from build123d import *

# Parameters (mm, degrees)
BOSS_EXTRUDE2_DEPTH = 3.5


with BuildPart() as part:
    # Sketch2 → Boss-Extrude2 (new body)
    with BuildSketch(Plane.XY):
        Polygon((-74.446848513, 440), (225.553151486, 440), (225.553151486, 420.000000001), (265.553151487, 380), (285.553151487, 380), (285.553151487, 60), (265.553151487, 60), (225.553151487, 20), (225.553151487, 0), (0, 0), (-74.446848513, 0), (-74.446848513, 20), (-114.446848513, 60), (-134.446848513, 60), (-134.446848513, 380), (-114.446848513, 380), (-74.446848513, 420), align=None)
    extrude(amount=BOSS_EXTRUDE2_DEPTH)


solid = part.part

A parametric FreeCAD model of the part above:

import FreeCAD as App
import Part
import Sketcher

doc = App.newDocument("Part")
body = doc.addObject("PartDesign::Body", "Body")

# Sketch on XY plane
sketch1 = body.newObject("Sketcher::SketchObject", "Sketch")
sketch1.AttachmentSupport = (doc.getObject("XY_Plane"), [""])
sketch1.MapMode = "FlatFace"
sketch1.addGeometry([
    Part.LineSegment(App.Vector(225.553151, 440, 0), App.Vector(-74.446849, 440, 0)),  # 0
    Part.LineSegment(App.Vector(-74.446849, 440, 0), App.Vector(-74.446849, 420, 0)),  # 1
    Part.LineSegment(App.Vector(-74.446849, 420, 0), App.Vector(-114.446849, 380, 0)),  # 2
    Part.LineSegment(App.Vector(-114.446849, 380, 0), App.Vector(-134.446849, 380, 0)),  # 3
    Part.LineSegment(App.Vector(-134.446849, 380, 0), App.Vector(-134.446849, 60, 0)),  # 4
    Part.LineSegment(App.Vector(-134.446849, 60, 0), App.Vector(-114.446849, 60, 0)),  # 5
    Part.LineSegment(App.Vector(-114.446849, 60, 0), App.Vector(-74.446849, 20, 0)),  # 6
    Part.LineSegment(App.Vector(-74.446849, 20, 0), App.Vector(-74.446849, 0, 0)),  # 7
    Part.LineSegment(App.Vector(-74.446849, 0, 0), App.Vector(225.553151, 0, 0)),  # 8
    Part.LineSegment(App.Vector(225.553151, 0, 0), App.Vector(225.553151, 20, 0)),  # 9
    Part.LineSegment(App.Vector(225.553151, 20, 0), App.Vector(265.553151, 60, 0)),  # 10
    Part.LineSegment(App.Vector(265.553151, 60, 0), App.Vector(285.553151, 60, 0)),  # 11
    Part.LineSegment(App.Vector(285.553151, 60, 0), App.Vector(285.553151, 380, 0)),  # 12
    Part.LineSegment(App.Vector(285.553151, 380, 0), App.Vector(265.553151, 380, 0)),  # 13
    Part.LineSegment(App.Vector(265.553151, 380, 0), App.Vector(225.553151, 420, 0)),  # 14
    Part.LineSegment(App.Vector(225.553151, 420, 0), App.Vector(225.553151, 440, 0)),  # 15
], False)
sketch1.addConstraint([
    Sketcher.Constraint("Coincident", 0, 2, 1, 1),
    Sketcher.Constraint("Coincident", 1, 2, 2, 1),
    Sketcher.Constraint("Coincident", 2, 2, 3, 1),
    Sketcher.Constraint("Coincident", 3, 2, 4, 1),
    Sketcher.Constraint("Coincident", 4, 2, 5, 1),
    Sketcher.Constraint("Coincident", 5, 2, 6, 1),
    Sketcher.Constraint("Coincident", 6, 2, 7, 1),
    Sketcher.Constraint("Coincident", 7, 2, 8, 1),
    Sketcher.Constraint("Coincident", 8, 2, 9, 1),
    Sketcher.Constraint("Coincident", 9, 2, 10, 1),
    Sketcher.Constraint("Coincident", 10, 2, 11, 1),
    Sketcher.Constraint("Coincident", 11, 2, 12, 1),
    Sketcher.Constraint("Coincident", 12, 2, 13, 1),
    Sketcher.Constraint("Coincident", 13, 2, 14, 1),
    Sketcher.Constraint("Coincident", 14, 2, 15, 1),
    Sketcher.Constraint("Coincident", 15, 2, 0, 1),
    Sketcher.Constraint("Horizontal", 0),
    Sketcher.Constraint("Vertical", 1),
    Sketcher.Constraint("Horizontal", 3),
    Sketcher.Constraint("Vertical", 4),
    Sketcher.Constraint("Horizontal", 5),
    Sketcher.Constraint("Vertical", 7),
    Sketcher.Constraint("Horizontal", 8),
    Sketcher.Constraint("Vertical", 9),
    Sketcher.Constraint("Horizontal", 11),
    Sketcher.Constraint("Vertical", 12),
    Sketcher.Constraint("Horizontal", 13),
    Sketcher.Constraint("Vertical", 15),
    Sketcher.Constraint("PointOnObject", 7, 2, -1),
    Sketcher.Constraint("Perpendicular", 2, 6),
    Sketcher.Constraint("Perpendicular", 6, 10),
    Sketcher.Constraint("Perpendicular", 10, 14),
    Sketcher.Constraint("Horizontal", 6, 2, 9, 2),
    Sketcher.Constraint("Horizontal", 5, 2, 10, 2),
    Sketcher.Constraint("Horizontal", 3, 2, 12, 2),
    Sketcher.Constraint("Horizontal", 1, 2, 14, 2),
    Sketcher.Constraint("Vertical", 2, 2, 5, 2),
    Sketcher.Constraint("Vertical", 1, 2, 6, 2),
    Sketcher.Constraint("Vertical", 10, 2, 13, 2),
    Sketcher.Constraint("Vertical", 9, 2, 14, 2),
    Sketcher.Constraint("Equal", 5, 11),
    Sketcher.Constraint("Equal", 13, 1),
    Sketcher.Constraint("Equal", 1, 7),
    Sketcher.Constraint("DistanceX", 0, 2, 0, 1, 300.0),
    Sketcher.Constraint("DistanceX", 3, 2, 3, 1, 20.0),
    Sketcher.Constraint("DistanceY", 4, 2, 4, 1, 320.0),
    Sketcher.Constraint("DistanceY", -1, 1, 0, 2, 440.0),
    Sketcher.Constraint("DistanceX", 0, 2, -1, 1, 74.446849),
])
pad1 = body.newObject("PartDesign::Pad", "Pad")
pad1.Profile = sketch1
pad1.Length = 3.5

doc.recompute()
